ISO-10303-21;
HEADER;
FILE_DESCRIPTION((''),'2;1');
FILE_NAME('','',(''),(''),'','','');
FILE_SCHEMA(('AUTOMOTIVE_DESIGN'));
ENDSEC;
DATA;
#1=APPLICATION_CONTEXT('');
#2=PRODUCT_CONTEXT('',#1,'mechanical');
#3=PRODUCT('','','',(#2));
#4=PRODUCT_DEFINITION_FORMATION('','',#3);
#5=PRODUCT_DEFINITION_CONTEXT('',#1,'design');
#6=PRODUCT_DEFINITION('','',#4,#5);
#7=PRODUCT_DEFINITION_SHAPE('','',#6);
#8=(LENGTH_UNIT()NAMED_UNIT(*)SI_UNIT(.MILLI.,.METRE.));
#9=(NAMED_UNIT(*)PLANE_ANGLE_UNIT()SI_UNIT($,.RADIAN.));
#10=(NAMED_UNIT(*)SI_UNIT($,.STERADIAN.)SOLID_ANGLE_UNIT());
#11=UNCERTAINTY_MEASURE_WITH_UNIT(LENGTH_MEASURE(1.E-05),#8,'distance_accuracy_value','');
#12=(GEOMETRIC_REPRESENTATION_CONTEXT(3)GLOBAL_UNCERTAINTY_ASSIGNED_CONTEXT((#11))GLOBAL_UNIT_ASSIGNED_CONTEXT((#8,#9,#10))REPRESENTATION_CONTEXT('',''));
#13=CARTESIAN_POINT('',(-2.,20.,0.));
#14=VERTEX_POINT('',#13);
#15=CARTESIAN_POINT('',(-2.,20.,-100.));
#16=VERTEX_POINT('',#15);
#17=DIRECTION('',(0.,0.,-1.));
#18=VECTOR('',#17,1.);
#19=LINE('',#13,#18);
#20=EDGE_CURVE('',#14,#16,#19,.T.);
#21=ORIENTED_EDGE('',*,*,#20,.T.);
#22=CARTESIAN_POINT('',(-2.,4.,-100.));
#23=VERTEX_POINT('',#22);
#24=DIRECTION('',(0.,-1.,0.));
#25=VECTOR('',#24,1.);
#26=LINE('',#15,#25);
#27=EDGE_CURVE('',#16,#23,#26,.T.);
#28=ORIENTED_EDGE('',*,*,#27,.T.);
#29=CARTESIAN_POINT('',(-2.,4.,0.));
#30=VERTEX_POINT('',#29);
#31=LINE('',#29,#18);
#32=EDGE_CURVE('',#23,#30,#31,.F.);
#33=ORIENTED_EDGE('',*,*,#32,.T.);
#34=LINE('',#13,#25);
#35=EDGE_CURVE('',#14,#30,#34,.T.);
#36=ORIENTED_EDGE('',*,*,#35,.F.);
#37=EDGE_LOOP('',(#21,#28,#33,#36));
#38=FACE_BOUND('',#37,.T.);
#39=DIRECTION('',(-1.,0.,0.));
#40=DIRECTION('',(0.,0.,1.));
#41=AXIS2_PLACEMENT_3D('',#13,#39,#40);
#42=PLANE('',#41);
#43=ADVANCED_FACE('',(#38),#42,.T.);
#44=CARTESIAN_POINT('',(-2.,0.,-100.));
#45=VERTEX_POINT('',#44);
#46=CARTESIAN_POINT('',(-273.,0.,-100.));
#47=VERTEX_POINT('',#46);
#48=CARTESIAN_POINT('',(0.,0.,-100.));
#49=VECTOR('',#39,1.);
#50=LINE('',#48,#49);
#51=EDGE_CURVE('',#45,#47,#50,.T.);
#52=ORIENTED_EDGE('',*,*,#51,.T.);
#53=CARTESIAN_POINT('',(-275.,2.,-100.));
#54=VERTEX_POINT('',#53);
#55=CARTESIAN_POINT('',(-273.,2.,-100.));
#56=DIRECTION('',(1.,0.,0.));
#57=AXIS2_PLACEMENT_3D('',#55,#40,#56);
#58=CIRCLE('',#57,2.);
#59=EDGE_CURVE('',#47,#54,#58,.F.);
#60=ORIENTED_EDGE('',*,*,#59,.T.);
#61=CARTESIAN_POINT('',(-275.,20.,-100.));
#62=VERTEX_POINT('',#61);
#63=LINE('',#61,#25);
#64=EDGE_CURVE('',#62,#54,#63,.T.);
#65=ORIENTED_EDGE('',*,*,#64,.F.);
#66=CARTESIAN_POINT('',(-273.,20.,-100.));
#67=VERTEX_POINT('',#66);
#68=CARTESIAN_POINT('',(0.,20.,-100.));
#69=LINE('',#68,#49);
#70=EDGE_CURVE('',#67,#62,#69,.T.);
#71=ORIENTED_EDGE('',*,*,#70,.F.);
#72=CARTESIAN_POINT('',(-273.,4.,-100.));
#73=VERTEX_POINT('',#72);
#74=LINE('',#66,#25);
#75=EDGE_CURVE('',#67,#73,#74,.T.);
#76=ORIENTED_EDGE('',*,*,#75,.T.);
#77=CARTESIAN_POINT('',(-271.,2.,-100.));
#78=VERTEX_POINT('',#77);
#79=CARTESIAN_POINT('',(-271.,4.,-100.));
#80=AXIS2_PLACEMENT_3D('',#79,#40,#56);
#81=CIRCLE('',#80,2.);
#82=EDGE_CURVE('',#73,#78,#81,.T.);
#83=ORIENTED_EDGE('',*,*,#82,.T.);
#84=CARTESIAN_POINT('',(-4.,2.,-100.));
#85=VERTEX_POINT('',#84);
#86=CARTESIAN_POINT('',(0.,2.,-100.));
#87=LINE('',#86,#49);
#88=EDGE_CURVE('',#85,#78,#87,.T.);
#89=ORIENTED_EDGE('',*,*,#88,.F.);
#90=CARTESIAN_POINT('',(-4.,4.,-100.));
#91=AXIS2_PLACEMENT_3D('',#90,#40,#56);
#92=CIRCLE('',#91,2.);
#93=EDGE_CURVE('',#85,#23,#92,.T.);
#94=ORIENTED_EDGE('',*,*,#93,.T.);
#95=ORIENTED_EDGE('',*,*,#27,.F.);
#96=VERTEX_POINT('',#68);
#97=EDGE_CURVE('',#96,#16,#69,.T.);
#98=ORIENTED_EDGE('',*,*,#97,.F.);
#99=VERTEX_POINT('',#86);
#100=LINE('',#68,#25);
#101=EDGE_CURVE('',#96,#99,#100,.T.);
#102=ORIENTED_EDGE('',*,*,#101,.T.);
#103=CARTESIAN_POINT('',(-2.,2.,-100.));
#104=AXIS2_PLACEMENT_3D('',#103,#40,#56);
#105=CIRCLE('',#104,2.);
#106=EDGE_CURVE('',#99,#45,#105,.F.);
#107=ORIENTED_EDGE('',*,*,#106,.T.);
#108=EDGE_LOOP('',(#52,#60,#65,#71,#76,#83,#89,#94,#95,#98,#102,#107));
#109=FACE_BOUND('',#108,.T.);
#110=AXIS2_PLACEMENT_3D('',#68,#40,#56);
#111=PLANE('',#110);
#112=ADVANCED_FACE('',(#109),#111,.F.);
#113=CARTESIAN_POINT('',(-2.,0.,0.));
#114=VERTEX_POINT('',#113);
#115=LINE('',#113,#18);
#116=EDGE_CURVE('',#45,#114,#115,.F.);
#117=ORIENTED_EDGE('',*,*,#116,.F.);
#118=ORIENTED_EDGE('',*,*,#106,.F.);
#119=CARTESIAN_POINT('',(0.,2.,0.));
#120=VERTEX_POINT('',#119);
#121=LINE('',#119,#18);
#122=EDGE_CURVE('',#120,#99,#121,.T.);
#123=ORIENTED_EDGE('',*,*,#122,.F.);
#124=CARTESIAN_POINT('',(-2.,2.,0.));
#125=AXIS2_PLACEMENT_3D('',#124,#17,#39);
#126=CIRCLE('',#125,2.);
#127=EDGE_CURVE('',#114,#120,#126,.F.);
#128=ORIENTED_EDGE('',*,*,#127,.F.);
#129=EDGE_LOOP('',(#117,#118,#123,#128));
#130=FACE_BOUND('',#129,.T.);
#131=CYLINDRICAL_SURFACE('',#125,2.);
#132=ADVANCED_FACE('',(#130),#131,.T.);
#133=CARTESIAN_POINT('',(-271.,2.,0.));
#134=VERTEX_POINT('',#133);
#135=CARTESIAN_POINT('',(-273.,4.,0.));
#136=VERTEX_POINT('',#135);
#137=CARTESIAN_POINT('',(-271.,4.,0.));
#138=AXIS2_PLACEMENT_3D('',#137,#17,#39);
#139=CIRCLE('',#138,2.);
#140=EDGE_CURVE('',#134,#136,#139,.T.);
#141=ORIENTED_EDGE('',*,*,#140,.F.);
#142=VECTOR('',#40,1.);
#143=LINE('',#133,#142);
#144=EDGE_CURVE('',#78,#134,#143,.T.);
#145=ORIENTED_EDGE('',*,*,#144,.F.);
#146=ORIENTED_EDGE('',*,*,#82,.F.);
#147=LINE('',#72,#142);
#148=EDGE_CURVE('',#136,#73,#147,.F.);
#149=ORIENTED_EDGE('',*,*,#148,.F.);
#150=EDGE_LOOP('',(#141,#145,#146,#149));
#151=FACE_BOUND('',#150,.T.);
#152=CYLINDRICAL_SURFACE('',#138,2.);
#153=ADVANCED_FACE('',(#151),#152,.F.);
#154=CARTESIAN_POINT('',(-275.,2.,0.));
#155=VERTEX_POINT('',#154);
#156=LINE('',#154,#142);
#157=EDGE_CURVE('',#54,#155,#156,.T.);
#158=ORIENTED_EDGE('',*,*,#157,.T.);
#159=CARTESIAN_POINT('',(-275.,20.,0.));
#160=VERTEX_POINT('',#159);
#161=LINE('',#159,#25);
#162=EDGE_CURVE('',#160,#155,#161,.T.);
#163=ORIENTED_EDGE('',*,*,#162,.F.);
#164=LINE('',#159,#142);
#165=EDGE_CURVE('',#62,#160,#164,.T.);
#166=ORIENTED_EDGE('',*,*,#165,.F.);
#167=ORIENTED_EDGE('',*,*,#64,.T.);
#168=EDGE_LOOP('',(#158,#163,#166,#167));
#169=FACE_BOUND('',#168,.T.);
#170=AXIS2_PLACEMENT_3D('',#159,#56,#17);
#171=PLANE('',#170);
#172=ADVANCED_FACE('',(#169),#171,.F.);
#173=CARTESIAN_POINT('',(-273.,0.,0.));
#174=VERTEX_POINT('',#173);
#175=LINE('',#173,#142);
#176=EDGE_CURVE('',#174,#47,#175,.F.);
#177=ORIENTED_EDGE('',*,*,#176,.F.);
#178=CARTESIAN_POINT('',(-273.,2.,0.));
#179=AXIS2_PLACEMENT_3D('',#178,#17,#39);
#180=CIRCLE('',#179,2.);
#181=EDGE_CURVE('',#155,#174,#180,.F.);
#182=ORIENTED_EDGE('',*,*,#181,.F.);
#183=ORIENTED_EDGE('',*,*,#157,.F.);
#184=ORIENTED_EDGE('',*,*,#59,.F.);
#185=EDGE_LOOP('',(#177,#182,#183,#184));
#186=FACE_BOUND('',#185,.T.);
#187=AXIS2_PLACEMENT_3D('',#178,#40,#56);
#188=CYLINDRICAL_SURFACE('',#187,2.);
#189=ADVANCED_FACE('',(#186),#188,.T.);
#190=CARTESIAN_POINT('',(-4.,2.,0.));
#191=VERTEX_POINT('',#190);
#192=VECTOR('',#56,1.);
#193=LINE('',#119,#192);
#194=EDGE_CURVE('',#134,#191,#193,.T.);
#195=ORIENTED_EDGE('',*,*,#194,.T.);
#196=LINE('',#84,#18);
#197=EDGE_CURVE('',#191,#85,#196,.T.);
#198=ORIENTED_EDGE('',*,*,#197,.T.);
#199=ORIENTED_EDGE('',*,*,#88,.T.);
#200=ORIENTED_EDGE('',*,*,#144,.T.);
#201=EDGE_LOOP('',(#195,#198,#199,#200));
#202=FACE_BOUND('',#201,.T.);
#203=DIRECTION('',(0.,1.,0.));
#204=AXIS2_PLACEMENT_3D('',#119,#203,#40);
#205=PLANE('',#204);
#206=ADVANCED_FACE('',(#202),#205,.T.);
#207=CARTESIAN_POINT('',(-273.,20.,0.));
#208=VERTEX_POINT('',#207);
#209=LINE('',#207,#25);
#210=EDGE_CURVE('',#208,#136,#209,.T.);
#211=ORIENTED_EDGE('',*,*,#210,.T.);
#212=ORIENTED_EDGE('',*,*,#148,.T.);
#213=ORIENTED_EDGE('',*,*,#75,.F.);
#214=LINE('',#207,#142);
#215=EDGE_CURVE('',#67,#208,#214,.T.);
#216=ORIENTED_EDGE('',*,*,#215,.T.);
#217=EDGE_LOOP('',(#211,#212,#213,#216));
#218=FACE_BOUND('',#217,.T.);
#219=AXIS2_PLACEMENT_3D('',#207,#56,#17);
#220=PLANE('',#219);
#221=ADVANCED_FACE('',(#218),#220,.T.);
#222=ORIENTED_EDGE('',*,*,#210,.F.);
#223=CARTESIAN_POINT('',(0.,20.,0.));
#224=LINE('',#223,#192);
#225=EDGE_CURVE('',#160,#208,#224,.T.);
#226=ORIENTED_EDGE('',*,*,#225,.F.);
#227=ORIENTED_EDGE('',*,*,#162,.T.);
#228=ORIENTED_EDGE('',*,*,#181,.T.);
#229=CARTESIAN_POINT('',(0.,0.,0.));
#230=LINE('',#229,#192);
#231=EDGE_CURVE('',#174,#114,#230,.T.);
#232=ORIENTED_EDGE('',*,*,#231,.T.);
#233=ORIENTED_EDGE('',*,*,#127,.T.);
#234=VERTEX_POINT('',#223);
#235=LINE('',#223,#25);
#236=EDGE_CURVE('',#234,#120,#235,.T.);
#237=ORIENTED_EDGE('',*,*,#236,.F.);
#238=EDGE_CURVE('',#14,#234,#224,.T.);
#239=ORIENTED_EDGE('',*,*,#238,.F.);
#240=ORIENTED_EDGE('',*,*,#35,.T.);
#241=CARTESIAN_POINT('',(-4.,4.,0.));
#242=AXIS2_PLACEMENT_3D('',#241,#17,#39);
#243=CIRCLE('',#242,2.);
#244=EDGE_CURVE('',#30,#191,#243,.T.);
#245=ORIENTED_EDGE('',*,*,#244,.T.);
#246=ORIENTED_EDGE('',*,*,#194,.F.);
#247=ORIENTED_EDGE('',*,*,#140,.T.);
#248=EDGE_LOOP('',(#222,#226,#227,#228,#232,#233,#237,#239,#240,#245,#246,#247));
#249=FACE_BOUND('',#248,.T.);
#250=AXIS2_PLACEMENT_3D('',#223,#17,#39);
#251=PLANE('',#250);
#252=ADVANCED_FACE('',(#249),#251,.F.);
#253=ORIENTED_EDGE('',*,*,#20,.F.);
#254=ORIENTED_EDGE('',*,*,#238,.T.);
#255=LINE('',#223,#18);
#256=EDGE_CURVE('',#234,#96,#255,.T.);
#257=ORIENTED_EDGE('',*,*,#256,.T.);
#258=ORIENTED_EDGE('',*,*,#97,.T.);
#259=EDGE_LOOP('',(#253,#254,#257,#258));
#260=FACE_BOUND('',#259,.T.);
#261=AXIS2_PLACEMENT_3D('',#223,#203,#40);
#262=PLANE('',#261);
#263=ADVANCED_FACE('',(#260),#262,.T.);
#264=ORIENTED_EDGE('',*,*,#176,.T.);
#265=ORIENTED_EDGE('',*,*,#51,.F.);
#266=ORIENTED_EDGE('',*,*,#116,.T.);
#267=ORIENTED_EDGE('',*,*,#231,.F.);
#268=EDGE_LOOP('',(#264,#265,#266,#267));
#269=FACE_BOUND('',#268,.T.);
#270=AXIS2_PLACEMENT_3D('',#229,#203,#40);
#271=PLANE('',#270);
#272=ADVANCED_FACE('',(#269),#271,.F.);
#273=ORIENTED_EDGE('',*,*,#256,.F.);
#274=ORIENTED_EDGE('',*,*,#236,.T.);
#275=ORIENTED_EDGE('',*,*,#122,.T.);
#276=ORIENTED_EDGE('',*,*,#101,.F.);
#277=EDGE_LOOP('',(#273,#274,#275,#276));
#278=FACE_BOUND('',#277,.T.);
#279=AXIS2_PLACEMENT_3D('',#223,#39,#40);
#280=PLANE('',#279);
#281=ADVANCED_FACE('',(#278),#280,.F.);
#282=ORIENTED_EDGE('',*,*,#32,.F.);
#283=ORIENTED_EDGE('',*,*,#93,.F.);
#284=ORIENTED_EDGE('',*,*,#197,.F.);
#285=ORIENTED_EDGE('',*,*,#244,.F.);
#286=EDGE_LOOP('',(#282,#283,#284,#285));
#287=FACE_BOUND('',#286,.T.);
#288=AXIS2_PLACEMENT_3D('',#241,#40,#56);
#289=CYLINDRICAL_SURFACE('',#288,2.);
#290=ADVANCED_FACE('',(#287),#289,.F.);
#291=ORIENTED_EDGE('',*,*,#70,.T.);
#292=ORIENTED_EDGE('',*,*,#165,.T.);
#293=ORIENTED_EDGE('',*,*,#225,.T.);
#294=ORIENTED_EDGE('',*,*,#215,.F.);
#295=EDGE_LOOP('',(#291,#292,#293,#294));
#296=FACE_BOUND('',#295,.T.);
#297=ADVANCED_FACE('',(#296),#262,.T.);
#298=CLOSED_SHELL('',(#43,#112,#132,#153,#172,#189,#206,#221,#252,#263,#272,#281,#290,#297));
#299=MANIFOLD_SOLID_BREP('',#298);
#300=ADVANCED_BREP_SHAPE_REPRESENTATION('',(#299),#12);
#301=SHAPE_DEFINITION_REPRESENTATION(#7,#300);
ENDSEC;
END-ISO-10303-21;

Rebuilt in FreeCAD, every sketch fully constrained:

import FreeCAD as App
import Part
import Sketcher

V = App.Vector


def edges_at(feature, points):
    """Names of the edges that pass closest to the given points."""
    edges = feature.Shape.Edges
    near = lambda p: min(range(len(edges)), key=lambda i: edges[i].distToShape(Part.Vertex(*p))[0])
    return sorted({f"Edge{near(p) + 1}" for p in points})


def faces_at(feature, points):
    """Names of the faces that lie closest to the given points."""
    faces = feature.Shape.Faces
    near = lambda p: min(range(len(faces)), key=lambda i: faces[i].distToShape(Part.Vertex(*p))[0])
    return sorted({f"Face{near(p) + 1}" for p in points})


def add_polygon(sketch, points):
    """Adds a closed chain of lines whose ends are joined by coincident constraints."""
    first, n = sketch.GeometryCount, len(points)
    for a, b in zip(points, points[1:] + points[:1]):
        sketch.addGeometry(Part.LineSegment(App.Vector(*a, 0), App.Vector(*b, 0)), False)
    for i in range(n):
        sketch.addConstraint(Sketcher.Constraint("Coincident", first + i, 2, first + (i + 1) % n, 1))

doc = App.newDocument("Part")
body = doc.addObject("PartDesign::Body", "Body")

# Sketch on XZ plane
sketch1 = doc.addObject("Sketcher::SketchObject", "Sketch")
body.addObject(sketch1)
sketch1.AttachmentSupport = (doc.XZ_Plane, [""])
sketch1.MapMode = "FlatFace"
add_polygon(sketch1, [(-275, -100), (-275, 0), (0, 0), (0, -100)])  # lines 0-3
sketch1.addConstraint([
    Sketcher.Constraint("Vertical", 0),
    Sketcher.Constraint("Horizontal", 1),
    Sketcher.Constraint("Vertical", 2),
    Sketcher.Constraint("Horizontal", 3),
    Sketcher.Constraint("Coincident", 1, 2, -1, 1),
    Sketcher.Constraint("DistanceX", 1, 1, 1, 2, 275.0),
    Sketcher.Constraint("DistanceY", 0, 1, 0, 2, 100.0),
])
pad1 = doc.addObject("PartDesign::Pad", "Pad")
body.addObject(pad1)
pad1.Profile = sketch1
pad1.Length = 20
pad1.Reversed = True
doc.recompute()

thickness = doc.addObject("PartDesign::Thickness", "Thickness")
body.addObject(thickness)
thickness.Base = (pad1, faces_at(pad1, [(-137.5, 20, -50), (-137.5, 10, 0), (-137.5, 10, -100)]))
thickness.Value = 2
thickness.Reversed = True
thickness.Join = "Intersection"
doc.recompute()

fillet = doc.addObject("PartDesign::Fillet", "Fillet")
body.addObject(fillet)
fillet.Base = (thickness, edges_at(thickness, [
    (-2, 2, -50),
    (-273, 2, -50),
    (-275, 0, -50),
    (0, 0, -50),
]))
fillet.Radius = 2

doc.recompute()
